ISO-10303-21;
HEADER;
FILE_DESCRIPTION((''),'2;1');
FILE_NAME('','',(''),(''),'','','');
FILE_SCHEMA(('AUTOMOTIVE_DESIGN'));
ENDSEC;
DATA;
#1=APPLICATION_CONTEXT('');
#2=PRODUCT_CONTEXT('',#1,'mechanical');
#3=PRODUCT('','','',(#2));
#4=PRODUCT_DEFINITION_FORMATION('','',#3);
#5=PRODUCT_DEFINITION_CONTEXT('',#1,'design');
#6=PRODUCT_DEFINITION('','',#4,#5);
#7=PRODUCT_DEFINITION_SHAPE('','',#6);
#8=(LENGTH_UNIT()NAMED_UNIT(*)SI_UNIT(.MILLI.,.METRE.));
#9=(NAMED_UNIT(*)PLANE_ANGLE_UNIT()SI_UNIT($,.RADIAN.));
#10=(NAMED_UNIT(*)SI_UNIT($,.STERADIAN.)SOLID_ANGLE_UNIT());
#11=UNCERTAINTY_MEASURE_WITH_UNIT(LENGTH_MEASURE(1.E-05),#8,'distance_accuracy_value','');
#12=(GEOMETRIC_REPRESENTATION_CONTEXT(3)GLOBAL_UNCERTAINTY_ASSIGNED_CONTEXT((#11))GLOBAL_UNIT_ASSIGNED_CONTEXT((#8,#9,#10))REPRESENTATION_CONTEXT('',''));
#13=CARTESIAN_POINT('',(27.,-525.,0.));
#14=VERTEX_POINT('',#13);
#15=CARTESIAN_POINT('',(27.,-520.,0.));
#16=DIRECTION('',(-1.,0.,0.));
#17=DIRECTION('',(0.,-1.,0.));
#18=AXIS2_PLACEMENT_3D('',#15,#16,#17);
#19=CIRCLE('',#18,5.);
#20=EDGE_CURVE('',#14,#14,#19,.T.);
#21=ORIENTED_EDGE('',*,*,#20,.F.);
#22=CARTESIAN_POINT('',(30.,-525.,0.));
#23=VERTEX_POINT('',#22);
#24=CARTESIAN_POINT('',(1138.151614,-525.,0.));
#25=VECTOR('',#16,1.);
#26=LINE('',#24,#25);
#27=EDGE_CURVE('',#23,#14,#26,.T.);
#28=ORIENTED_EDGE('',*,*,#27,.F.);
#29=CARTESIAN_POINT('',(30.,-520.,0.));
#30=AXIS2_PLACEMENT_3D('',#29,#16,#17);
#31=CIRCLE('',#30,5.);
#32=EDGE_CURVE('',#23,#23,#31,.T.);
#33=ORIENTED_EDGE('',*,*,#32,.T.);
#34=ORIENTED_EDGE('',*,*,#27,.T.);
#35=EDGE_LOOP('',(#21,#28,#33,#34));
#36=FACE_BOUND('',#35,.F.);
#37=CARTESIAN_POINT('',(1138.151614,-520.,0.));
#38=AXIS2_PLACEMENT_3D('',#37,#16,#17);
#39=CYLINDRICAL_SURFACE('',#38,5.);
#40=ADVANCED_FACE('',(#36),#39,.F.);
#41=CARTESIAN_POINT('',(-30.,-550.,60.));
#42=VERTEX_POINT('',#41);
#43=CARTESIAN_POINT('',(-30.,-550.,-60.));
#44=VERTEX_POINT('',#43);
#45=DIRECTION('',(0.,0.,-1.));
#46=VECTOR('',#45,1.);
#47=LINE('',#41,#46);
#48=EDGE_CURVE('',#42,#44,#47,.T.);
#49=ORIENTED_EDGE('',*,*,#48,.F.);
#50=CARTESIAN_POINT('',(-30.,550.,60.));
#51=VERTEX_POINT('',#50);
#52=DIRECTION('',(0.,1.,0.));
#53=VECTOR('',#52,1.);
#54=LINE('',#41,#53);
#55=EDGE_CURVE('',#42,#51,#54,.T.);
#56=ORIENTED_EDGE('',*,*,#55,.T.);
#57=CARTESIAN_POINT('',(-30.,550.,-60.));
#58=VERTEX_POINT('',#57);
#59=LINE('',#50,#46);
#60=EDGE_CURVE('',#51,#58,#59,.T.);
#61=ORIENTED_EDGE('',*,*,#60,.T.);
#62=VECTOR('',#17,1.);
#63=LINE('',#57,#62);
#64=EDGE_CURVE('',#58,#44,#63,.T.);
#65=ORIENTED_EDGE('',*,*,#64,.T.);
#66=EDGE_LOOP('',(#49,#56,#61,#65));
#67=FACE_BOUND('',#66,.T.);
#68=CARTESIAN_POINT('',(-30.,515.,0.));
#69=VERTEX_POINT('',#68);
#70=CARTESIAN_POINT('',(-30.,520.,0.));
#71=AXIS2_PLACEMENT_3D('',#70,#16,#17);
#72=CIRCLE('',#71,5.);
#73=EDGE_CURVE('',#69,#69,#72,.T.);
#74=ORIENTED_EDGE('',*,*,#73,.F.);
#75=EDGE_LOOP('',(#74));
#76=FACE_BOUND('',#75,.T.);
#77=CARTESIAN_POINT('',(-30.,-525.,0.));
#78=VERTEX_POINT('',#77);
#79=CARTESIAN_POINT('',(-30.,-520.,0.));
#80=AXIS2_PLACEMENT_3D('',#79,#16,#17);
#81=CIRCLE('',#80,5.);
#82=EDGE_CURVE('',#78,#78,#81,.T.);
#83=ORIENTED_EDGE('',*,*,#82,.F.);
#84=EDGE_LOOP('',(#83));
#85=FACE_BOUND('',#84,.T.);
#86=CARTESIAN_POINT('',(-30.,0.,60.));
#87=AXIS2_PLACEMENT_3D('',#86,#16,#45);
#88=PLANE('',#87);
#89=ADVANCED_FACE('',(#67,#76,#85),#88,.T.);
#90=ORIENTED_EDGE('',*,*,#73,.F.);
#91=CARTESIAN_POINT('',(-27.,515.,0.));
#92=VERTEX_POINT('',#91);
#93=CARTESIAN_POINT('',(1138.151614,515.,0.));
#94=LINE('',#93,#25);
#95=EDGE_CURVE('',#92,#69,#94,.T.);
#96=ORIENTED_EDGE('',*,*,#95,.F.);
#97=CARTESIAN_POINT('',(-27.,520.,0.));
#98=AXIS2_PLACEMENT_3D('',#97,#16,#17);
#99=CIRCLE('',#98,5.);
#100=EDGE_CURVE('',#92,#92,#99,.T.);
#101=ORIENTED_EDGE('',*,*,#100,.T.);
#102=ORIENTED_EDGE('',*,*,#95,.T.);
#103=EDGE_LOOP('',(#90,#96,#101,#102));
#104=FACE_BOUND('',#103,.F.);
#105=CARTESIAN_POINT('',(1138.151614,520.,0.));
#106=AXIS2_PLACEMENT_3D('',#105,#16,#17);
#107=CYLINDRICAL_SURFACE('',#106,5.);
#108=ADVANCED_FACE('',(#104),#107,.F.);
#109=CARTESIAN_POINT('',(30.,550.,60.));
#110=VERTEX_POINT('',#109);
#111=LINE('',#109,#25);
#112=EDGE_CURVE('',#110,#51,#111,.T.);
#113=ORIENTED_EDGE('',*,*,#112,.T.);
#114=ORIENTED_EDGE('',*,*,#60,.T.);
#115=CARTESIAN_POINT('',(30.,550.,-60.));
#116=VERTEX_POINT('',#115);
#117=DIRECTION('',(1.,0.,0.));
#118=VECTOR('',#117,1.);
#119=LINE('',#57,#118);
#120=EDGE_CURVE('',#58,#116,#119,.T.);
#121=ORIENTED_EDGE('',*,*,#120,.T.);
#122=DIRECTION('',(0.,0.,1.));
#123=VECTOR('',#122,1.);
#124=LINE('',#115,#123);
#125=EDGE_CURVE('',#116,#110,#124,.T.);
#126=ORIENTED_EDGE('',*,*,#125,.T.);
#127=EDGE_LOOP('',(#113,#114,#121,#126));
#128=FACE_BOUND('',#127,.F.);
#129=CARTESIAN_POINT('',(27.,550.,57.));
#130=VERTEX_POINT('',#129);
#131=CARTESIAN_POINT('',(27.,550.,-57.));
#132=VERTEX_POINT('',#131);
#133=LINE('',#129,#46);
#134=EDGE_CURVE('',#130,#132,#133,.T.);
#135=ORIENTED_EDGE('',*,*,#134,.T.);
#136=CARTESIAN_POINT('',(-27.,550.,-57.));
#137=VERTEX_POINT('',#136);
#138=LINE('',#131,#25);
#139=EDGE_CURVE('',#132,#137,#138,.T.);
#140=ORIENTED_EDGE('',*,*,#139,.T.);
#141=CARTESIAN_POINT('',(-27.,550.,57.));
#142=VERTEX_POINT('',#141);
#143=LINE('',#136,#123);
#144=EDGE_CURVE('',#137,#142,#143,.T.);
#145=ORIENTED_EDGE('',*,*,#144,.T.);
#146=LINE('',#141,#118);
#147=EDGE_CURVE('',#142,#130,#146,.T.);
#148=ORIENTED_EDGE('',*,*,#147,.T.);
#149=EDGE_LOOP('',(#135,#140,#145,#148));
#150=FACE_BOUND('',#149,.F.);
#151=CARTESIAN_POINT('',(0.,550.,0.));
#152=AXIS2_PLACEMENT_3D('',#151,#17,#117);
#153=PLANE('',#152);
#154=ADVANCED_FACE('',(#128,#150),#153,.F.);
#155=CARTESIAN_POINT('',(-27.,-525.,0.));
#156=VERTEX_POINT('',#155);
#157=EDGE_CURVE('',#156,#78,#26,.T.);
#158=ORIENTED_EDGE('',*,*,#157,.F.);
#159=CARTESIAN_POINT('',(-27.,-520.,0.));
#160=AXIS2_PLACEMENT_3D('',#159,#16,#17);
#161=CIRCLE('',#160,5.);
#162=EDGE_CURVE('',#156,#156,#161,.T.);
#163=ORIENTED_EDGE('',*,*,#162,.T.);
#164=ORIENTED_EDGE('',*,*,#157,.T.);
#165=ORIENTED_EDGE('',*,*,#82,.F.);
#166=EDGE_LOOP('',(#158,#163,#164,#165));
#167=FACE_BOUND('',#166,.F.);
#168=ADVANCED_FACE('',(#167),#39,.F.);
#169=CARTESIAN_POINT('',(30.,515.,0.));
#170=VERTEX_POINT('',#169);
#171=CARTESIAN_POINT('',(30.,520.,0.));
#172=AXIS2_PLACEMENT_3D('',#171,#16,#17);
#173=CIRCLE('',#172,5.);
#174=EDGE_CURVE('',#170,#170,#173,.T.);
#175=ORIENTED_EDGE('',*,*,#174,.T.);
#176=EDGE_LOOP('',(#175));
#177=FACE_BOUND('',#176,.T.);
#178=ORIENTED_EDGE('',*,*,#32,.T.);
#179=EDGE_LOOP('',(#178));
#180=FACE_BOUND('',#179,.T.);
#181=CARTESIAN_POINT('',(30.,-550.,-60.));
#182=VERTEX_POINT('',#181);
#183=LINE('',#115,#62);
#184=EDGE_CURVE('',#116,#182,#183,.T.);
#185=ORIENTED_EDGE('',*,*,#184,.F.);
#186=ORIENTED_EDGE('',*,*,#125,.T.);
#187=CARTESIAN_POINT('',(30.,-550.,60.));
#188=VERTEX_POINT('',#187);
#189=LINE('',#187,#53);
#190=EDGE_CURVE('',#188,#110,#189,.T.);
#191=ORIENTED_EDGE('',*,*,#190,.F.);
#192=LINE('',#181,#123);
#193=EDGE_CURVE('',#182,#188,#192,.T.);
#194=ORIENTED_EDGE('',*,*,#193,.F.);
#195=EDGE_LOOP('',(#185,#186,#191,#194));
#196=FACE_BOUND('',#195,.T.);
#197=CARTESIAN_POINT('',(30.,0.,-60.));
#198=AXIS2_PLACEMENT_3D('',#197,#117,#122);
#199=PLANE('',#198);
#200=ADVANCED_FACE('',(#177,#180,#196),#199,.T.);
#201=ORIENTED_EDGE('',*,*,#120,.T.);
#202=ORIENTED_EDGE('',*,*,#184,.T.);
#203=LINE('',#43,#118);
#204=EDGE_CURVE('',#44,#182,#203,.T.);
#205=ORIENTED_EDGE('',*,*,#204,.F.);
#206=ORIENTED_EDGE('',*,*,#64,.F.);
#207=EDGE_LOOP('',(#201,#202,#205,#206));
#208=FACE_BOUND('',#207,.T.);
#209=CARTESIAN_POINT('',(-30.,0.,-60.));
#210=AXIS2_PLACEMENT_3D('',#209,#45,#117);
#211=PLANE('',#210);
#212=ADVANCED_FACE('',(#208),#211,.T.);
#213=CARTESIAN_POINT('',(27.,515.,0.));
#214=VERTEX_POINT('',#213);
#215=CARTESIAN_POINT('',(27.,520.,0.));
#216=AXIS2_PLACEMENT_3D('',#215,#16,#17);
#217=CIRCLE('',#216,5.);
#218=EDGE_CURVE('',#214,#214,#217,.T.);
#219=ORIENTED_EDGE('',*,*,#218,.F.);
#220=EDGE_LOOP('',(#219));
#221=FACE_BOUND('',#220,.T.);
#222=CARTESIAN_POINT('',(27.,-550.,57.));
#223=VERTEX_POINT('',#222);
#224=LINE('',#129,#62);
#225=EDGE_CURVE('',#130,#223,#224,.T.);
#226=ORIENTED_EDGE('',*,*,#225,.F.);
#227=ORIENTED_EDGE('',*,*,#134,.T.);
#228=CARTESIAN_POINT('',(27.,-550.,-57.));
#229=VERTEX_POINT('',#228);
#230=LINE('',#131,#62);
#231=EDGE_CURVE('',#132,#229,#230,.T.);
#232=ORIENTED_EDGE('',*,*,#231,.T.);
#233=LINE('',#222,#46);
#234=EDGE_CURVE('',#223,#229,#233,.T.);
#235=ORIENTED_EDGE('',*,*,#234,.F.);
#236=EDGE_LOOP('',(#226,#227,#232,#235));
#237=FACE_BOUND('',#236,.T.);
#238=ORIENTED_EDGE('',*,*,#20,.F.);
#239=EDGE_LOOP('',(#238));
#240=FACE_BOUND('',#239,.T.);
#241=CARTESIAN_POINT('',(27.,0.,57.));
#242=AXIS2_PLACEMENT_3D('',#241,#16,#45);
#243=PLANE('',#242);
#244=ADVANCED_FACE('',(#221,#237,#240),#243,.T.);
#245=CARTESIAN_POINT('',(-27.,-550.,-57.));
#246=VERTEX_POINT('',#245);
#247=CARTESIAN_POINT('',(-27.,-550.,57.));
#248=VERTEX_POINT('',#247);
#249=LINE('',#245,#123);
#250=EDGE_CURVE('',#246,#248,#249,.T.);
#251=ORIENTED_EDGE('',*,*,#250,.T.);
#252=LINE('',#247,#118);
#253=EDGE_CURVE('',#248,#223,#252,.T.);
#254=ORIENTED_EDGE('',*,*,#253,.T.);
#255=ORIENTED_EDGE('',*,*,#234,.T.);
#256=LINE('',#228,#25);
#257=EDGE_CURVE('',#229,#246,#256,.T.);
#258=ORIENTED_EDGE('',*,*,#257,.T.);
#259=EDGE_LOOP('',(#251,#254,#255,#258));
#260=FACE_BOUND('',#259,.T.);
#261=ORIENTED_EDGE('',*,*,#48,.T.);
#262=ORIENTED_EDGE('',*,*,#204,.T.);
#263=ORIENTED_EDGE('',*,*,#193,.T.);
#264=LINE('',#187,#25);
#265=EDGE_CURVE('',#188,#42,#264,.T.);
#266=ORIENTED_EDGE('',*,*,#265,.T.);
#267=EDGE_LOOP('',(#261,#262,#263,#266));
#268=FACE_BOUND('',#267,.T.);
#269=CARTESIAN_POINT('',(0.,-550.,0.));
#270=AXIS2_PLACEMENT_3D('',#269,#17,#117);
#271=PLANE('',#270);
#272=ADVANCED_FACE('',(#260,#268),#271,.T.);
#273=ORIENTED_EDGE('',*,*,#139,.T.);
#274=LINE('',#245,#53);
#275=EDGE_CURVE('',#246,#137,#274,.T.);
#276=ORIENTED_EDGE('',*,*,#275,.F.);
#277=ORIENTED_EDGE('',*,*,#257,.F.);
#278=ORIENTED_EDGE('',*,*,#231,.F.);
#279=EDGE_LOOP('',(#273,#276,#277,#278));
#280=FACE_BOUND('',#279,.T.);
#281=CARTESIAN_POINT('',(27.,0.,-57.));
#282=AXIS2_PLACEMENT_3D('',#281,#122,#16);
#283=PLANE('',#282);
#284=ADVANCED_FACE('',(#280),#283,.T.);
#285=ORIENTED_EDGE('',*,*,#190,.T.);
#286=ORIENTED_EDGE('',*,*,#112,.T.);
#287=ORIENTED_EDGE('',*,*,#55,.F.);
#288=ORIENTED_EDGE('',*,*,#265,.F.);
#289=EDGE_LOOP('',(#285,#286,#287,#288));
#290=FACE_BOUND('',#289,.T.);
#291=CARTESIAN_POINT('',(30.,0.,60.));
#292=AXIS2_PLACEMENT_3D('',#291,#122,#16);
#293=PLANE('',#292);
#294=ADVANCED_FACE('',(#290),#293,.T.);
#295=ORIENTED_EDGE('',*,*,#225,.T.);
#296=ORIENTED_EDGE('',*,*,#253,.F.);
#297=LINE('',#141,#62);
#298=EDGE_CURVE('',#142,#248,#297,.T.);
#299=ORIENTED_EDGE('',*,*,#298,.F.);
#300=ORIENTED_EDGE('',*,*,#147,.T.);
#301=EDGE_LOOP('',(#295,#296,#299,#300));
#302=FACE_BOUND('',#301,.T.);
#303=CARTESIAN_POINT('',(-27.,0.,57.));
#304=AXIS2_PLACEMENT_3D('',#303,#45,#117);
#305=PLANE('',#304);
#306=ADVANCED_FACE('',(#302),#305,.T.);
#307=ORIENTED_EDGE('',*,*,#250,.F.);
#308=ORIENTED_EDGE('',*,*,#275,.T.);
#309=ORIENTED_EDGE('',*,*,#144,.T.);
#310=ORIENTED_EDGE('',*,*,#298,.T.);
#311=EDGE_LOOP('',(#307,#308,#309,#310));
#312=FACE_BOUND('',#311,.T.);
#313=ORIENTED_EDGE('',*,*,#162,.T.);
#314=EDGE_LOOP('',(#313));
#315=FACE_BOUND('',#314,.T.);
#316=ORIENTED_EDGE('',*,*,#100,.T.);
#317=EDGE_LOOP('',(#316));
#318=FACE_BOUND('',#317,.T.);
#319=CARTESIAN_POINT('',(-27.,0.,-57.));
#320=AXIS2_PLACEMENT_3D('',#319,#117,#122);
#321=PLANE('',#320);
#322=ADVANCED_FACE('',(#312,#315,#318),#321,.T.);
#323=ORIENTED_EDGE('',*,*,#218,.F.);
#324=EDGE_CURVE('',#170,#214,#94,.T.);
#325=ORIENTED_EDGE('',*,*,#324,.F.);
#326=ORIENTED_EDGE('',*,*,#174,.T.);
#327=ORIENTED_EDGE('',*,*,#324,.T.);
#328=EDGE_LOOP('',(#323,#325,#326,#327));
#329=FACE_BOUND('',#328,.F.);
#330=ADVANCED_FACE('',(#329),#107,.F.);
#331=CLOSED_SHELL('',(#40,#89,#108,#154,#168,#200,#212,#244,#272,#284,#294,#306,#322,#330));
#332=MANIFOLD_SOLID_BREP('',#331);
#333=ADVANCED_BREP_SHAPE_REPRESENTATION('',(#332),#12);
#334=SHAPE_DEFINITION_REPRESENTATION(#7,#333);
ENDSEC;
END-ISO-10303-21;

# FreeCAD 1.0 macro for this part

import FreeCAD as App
import Part
import Sketcher

doc = App.newDocument("Part")
body = doc.addObject("PartDesign::Body", "Body")

# Sketch on XZ plane
sketch1 = body.newObject("Sketcher::SketchObject", "Sketch")
sketch1.AttachmentSupport = (doc.getObject("XZ_Plane"), [""])
sketch1.MapMode = "FlatFace"
sketch1.addGeometry([
    Part.LineSegment(App.Vector(-30, 60, 0), App.Vector(-30, -60, 0)),  # 0
    Part.LineSegment(App.Vector(-30, -60, 0), App.Vector(30, -60, 0)),  # 1
    Part.LineSegment(App.Vector(30, -60, 0), App.Vector(30, 60, 0)),  # 2
    Part.LineSegment(App.Vector(30, 60, 0), App.Vector(-30, 60, 0)),  # 3
    Part.LineSegment(App.Vector(-27, -57, 0), App.Vector(-27, 57, 0)),  # 4
    Part.LineSegment(App.Vector(-27, 57, 0), App.Vector(27, 57, 0)),  # 5
    Part.LineSegment(App.Vector(27, 57, 0), App.Vector(27, -57, 0)),  # 6
    Part.LineSegment(App.Vector(27, -57, 0), App.Vector(-27, -57, 0)),  # 7
], False)
sketch1.addConstraint([
    Sketcher.Constraint("Coincident", 0, 2, 1, 1),
    Sketcher.Constraint("Coincident", 1, 2, 2, 1),
    Sketcher.Constraint("Coincident", 2, 2, 3, 1),
    Sketcher.Constraint("Coincident", 3, 2, 0, 1),
    Sketcher.Constraint("Coincident", 4, 2, 5, 1),
    Sketcher.Constraint("Coincident", 5, 2, 6, 1),
    Sketcher.Constraint("Coincident", 6, 2, 7, 1),
    Sketcher.Constraint("Coincident", 7, 2, 4, 1),
    Sketcher.Constraint("Vertical", 0),
    Sketcher.Constraint("Horizontal", 1),
    Sketcher.Constraint("Vertical", 2),
    Sketcher.Constraint("Horizontal", 3),
    Sketcher.Constraint("Vertical", 4),
    Sketcher.Constraint("Horizontal", 5),
    Sketcher.Constraint("Vertical", 6),
    Sketcher.Constraint("Horizontal", 7),
    Sketcher.Constraint("Symmetric", 0, 2, 2, 2, -1, 1),
    Sketcher.Constraint("Symmetric", 4, 2, 6, 2, -1, 1),
    Sketcher.Constraint("DistanceX", 1, 1, 1, 2, 60.0),
    Sketcher.Constraint("DistanceX", 5, 1, 5, 2, 54.0),
    Sketcher.Constraint("DistanceY", 0, 2, 0, 1, 120.0),
    Sketcher.Constraint("DistanceY", 4, 1, 4, 2, 114.0),
])
pad1 = body.newObject("PartDesign::Pad", "Pad")
pad1.Profile = sketch1
pad1.Length = 1100
pad1.Midplane = True

# Sketch on YZ plane
sketch2 = body.newObject("Sketcher::SketchObject", "Sketch001")
sketch2.AttachmentSupport = (doc.getObject("YZ_Plane"), [""])
sketch2.MapMode = "FlatFace"
sketch2.AttachmentOffset = App.Placement(App.Vector(0, 0, 30), App.Rotation())
sketch2.addGeometry([
    Part.Circle(App.Vector(520, 0, 0), App.Vector(0, 0, 1), 5),
    Part.Circle(App.Vector(-520, 0, 0), App.Vector(0, 0, 1), 5),
], False)
sketch2.addConstraint([
    Sketcher.Constraint("Equal", 0, 1),
    Sketcher.Constraint("Symmetric", 0, 3, 1, 3, -1, 1),
    Sketcher.Constraint("PointOnObject", 0, 3, -1),
    Sketcher.Constraint("Diameter", 0, 10.0),
    Sketcher.Constraint("DistanceX", -1, 1, 0, 3, 520.0),
])
doc.recompute()
hole = body.newObject("PartDesign::Hole", "Hole")
hole.Profile = sketch2
hole.ThreadType = "None"
hole.Diameter = 10
hole.DepthType = "ThroughAll"

doc.recompute()
